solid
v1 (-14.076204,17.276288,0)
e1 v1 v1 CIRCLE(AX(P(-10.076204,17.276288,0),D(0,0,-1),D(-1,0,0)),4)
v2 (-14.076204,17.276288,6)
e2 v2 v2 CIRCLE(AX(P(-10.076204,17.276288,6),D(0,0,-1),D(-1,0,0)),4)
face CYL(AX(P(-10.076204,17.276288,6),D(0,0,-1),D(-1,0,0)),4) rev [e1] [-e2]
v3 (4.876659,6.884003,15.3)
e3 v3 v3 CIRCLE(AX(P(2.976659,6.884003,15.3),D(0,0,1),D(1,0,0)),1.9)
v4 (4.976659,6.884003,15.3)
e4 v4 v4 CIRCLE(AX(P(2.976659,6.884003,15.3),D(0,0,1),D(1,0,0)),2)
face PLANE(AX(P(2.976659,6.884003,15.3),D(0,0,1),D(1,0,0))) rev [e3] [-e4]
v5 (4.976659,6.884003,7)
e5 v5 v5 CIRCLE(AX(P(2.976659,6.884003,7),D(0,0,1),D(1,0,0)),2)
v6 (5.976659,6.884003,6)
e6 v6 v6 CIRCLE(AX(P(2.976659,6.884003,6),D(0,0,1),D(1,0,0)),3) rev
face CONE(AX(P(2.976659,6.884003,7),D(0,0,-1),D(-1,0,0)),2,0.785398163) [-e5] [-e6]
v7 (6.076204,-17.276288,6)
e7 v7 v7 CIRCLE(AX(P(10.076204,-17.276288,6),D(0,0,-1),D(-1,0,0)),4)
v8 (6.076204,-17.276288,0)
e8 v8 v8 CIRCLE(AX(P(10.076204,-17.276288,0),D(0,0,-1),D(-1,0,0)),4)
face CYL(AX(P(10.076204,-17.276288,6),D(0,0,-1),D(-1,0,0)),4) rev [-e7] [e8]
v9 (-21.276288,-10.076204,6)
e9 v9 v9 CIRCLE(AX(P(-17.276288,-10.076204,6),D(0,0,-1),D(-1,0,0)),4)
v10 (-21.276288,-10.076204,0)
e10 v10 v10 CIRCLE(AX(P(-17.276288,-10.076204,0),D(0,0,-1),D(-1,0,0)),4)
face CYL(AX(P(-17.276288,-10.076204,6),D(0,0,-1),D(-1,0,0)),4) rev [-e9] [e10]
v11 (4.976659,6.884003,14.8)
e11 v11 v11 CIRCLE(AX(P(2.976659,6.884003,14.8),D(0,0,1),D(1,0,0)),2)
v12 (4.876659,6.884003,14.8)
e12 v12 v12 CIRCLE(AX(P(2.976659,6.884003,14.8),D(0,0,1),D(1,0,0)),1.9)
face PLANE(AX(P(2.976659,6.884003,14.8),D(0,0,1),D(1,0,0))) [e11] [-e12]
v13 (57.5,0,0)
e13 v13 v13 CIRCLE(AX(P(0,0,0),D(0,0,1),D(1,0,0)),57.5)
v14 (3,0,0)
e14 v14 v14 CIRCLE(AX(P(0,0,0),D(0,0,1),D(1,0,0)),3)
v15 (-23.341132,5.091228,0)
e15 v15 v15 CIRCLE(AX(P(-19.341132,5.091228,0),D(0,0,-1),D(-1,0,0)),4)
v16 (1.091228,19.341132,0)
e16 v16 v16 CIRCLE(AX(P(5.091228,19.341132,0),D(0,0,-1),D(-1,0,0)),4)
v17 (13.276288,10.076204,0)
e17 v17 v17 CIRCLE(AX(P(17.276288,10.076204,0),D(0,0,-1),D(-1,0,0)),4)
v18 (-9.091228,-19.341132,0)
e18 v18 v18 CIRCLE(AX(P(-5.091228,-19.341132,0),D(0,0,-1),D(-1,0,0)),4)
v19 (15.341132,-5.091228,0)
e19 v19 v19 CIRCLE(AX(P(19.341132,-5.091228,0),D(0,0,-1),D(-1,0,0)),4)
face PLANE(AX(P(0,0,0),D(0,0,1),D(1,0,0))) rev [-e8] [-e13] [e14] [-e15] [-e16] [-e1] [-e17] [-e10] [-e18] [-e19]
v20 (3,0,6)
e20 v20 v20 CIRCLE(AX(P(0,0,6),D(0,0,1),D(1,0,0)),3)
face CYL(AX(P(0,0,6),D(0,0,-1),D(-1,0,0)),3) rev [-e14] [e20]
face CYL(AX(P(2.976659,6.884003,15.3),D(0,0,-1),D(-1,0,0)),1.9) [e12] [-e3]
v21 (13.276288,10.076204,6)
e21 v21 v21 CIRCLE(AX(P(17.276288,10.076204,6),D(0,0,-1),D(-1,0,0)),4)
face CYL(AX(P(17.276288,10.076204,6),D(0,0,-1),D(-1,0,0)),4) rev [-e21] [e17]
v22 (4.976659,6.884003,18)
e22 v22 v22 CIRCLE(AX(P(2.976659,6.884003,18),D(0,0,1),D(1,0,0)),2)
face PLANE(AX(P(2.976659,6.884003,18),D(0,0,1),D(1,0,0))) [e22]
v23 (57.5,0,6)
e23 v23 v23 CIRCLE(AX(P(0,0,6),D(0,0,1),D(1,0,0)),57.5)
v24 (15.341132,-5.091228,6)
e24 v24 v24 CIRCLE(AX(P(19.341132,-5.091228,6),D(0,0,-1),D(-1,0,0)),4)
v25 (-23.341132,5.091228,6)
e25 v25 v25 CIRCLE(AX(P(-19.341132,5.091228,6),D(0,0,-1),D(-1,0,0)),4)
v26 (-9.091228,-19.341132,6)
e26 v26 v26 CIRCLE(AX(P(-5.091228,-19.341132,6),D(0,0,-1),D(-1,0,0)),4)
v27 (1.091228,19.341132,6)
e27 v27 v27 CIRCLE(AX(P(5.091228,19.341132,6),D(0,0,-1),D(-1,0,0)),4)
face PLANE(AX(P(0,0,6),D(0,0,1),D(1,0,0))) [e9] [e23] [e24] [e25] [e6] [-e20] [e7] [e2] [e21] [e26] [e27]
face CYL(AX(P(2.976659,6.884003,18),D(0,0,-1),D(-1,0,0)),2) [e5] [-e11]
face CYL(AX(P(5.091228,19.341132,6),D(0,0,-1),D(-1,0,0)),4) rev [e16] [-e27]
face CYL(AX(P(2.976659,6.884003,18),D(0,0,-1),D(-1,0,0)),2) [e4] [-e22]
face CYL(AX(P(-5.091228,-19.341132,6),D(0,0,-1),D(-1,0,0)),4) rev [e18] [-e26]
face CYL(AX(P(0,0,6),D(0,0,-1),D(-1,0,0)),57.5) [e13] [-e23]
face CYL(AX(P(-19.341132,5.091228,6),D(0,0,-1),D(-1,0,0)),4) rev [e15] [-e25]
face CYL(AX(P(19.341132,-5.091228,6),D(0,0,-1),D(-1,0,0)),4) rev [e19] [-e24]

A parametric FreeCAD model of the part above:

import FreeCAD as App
import Part
import Sketcher
from FreeCAD import Vector
Q = App.Units.Quantity


def edges_at(feature, points):
    """Names of the edges that pass closest to the given points."""
    edges = feature.Shape.Edges
    near = lambda p: min(range(len(edges)), key=lambda i: edges[i].distToShape(Part.Vertex(*p))[0])
    return sorted({f"Edge{near(p) + 1}" for p in points})

doc = App.newDocument("Part")
body = doc.addObject("PartDesign::Body", "Body")

sketch1 = doc.addObject("Sketcher::SketchObject", "Sketch")
body.addObject(sketch1)
sketch1.AttachmentSupport = (doc.XY_Plane, [""])
sketch1.MapMode = "FlatFace"
sketch1.addGeometry(Part.Circle(Vector(0, 0, 0), Vector(0, 0, 1), 57.5), False)
sketch1.addGeometry(Part.Circle(Vector(0, 0, 0), Vector(0, 0, 1), 3), False)
sketch1.addConstraint(Sketcher.Constraint("Coincident", 0, 3, -1, 1))
sketch1.addConstraint(Sketcher.Constraint("Coincident", 1, 3, -1, 1))
sketch1.addConstraint(Sketcher.Constraint("Diameter", 0, Q("115 mm")))
sketch1.addConstraint(Sketcher.Constraint("Diameter", 1, Q("6 mm")))
pad1 = doc.addObject("PartDesign::Pad", "Pad")
body.addObject(pad1)
pad1.Profile = sketch1
pad1.Length = 6

sketch2 = doc.addObject("Sketcher::SketchObject", "Sketch001")
body.addObject(sketch2)
sketch2.AttachmentSupport = (doc.XY_Plane, [""])
sketch2.MapMode = "FlatFace"
sketch2.addGeometry(Part.Circle(Vector(5.1, 19.3, 0), Vector(0, 0, 1), 4), False)
sketch2.addGeometry(Part.Circle(Vector(-10.1, 17.3, 0), Vector(0, 0, 1), 4), False)
sketch2.addGeometry(Part.Circle(Vector(-19.3, 5.1, 0), Vector(0, 0, 1), 4), False)
sketch2.addGeometry(Part.Circle(Vector(-17.3, -10.1, 0), Vector(0, 0, 1), 4), False)
sketch2.addGeometry(Part.Circle(Vector(-5.1, -19.3, 0), Vector(0, 0, 1), 4), False)
sketch2.addGeometry(Part.Circle(Vector(10.1, -17.3, 0), Vector(0, 0, 1), 4), False)
sketch2.addGeometry(Part.Circle(Vector(19.3, -5.1, 0), Vector(0, 0, 1), 4), False)
sketch2.addGeometry(Part.Circle(Vector(17.3, 10.1, 0), Vector(0, 0, 1), 4), False)
sketch2.addConstraint(Sketcher.Constraint("Equal", 0, 1))
sketch2.addConstraint(Sketcher.Constraint("Equal", 1, 2))
sketch2.addConstraint(Sketcher.Constraint("Equal", 2, 3))
sketch2.addConstraint(Sketcher.Constraint("Equal", 3, 4))
sketch2.addConstraint(Sketcher.Constraint("Equal", 4, 5))
sketch2.addConstraint(Sketcher.Constraint("Equal", 5, 6))
sketch2.addConstraint(Sketcher.Constraint("Equal", 6, 7))
sketch2.addConstraint(Sketcher.Constraint("Symmetric", 0, 3, 4, 3, -1, 1))
sketch2.addConstraint(Sketcher.Constraint("Symmetric", 1, 3, 5, 3, -1, 1))
sketch2.addConstraint(Sketcher.Constraint("Symmetric", 2, 3, 6, 3, -1, 1))
sketch2.addConstraint(Sketcher.Constraint("Symmetric", 3, 3, 7, 3, -1, 1))
sketch2.addConstraint(Sketcher.Constraint("Diameter", 0, Q("8 mm")))
sketch2.addConstraint(Sketcher.Constraint("DistanceX", 1, 3, 0, 3, Q("15.167432 mm")))
sketch2.addConstraint(Sketcher.Constraint("DistanceX", 2, 3, 1, 3, Q("9.264928 mm")))
sketch2.addConstraint(Sketcher.Constraint("DistanceY", 2, 3, 1, 3, Q("12.18506 mm")))
sketch2.addConstraint(Sketcher.Constraint("DistanceY", 3, 3, 2, 3, Q("15.167432 mm")))
sketch2.addConstraint(Sketcher.Constraint("DistanceX", 3, 3, 4, 3, Q("12.18506 mm")))
sketch2.addConstraint(Sketcher.Constraint("DistanceY", 4, 3, 3, 3, Q("9.264928 mm")))
sketch2.addConstraint(Sketcher.Constraint("DistanceX", -1, 1, 0, 3, Q("5.091228 mm")))
sketch2.addConstraint(Sketcher.Constraint("DistanceY", -1, 1, 0, 3, Q("19.341132 mm")))
pocket1 = doc.addObject("PartDesign::Pocket", "Pocket")
body.addObject(pocket1)
pocket1.Profile = sketch2
pocket1.Type = "ThroughAll"
pocket1.Reversed = True

sketch3 = doc.addObject("Sketcher::SketchObject", "Sketch002")
body.addObject(sketch3)
sketch3.AttachmentSupport = (doc.XY_Plane, [""])
sketch3.MapMode = "FlatFace"
sketch3.AttachmentOffset = App.Placement(Vector(0, 0, 6), App.Rotation())
sketch3.addGeometry(Part.Circle(Vector(3, 6.9, 0), Vector(0, 0, 1), 2), False)
sketch3.addConstraint(Sketcher.Constraint("Diameter", 0, Q("4 mm")))
sketch3.addConstraint(Sketcher.Constraint("DistanceX", -1, 1, 0, 3, Q("2.976659 mm")))
sketch3.addConstraint(Sketcher.Constraint("DistanceY", -1, 1, 0, 3, Q("6.884003 mm")))
pad2 = doc.addObject("PartDesign::Pad", "Pad001")
body.addObject(pad2)
pad2.Profile = sketch3
pad2.Length = 12

sketch4 = doc.addObject("Sketcher::SketchObject", "Sketch003")
body.addObject(sketch4)
sketch4.AttachmentSupport = (doc.XY_Plane, [""])
sketch4.MapMode = "FlatFace"
sketch4.AttachmentOffset = App.Placement(Vector(0, 0, 14.8), App.Rotation())
sketch4.addGeometry(Part.Circle(Vector(3, 6.9, 0), Vector(0, 0, 1), 2), False)
sketch4.addGeometry(Part.Circle(Vector(3, 6.9, 0), Vector(0, 0, 1), 1.9), False)
sketch4.addConstraint(Sketcher.Constraint("Coincident", 1, 3, 0, 3))
sketch4.addConstraint(Sketcher.Constraint("Diameter", 0, Q("4 mm")))
sketch4.addConstraint(Sketcher.Constraint("Diameter", 1, Q("3.8 mm")))
sketch4.addConstraint(Sketcher.Constraint("DistanceX", -1, 1, 0, 3, Q("2.976659 mm")))
sketch4.addConstraint(Sketcher.Constraint("DistanceY", -1, 1, 0, 3, Q("6.884003 mm")))
pocket2 = doc.addObject("PartDesign::Pocket", "Pocket001")
body.addObject(pocket2)
pocket2.Profile = sketch4
pocket2.Length = 0.5
pocket2.Reversed = True
doc.recompute()

chamfer = doc.addObject("PartDesign::Chamfer", "Chamfer")
body.addObject(chamfer)
chamfer.Base = (pocket2, edges_at(pocket2, [(0.977, 6.884, 6)]))
chamfer.Size = 1

doc.recompute()
